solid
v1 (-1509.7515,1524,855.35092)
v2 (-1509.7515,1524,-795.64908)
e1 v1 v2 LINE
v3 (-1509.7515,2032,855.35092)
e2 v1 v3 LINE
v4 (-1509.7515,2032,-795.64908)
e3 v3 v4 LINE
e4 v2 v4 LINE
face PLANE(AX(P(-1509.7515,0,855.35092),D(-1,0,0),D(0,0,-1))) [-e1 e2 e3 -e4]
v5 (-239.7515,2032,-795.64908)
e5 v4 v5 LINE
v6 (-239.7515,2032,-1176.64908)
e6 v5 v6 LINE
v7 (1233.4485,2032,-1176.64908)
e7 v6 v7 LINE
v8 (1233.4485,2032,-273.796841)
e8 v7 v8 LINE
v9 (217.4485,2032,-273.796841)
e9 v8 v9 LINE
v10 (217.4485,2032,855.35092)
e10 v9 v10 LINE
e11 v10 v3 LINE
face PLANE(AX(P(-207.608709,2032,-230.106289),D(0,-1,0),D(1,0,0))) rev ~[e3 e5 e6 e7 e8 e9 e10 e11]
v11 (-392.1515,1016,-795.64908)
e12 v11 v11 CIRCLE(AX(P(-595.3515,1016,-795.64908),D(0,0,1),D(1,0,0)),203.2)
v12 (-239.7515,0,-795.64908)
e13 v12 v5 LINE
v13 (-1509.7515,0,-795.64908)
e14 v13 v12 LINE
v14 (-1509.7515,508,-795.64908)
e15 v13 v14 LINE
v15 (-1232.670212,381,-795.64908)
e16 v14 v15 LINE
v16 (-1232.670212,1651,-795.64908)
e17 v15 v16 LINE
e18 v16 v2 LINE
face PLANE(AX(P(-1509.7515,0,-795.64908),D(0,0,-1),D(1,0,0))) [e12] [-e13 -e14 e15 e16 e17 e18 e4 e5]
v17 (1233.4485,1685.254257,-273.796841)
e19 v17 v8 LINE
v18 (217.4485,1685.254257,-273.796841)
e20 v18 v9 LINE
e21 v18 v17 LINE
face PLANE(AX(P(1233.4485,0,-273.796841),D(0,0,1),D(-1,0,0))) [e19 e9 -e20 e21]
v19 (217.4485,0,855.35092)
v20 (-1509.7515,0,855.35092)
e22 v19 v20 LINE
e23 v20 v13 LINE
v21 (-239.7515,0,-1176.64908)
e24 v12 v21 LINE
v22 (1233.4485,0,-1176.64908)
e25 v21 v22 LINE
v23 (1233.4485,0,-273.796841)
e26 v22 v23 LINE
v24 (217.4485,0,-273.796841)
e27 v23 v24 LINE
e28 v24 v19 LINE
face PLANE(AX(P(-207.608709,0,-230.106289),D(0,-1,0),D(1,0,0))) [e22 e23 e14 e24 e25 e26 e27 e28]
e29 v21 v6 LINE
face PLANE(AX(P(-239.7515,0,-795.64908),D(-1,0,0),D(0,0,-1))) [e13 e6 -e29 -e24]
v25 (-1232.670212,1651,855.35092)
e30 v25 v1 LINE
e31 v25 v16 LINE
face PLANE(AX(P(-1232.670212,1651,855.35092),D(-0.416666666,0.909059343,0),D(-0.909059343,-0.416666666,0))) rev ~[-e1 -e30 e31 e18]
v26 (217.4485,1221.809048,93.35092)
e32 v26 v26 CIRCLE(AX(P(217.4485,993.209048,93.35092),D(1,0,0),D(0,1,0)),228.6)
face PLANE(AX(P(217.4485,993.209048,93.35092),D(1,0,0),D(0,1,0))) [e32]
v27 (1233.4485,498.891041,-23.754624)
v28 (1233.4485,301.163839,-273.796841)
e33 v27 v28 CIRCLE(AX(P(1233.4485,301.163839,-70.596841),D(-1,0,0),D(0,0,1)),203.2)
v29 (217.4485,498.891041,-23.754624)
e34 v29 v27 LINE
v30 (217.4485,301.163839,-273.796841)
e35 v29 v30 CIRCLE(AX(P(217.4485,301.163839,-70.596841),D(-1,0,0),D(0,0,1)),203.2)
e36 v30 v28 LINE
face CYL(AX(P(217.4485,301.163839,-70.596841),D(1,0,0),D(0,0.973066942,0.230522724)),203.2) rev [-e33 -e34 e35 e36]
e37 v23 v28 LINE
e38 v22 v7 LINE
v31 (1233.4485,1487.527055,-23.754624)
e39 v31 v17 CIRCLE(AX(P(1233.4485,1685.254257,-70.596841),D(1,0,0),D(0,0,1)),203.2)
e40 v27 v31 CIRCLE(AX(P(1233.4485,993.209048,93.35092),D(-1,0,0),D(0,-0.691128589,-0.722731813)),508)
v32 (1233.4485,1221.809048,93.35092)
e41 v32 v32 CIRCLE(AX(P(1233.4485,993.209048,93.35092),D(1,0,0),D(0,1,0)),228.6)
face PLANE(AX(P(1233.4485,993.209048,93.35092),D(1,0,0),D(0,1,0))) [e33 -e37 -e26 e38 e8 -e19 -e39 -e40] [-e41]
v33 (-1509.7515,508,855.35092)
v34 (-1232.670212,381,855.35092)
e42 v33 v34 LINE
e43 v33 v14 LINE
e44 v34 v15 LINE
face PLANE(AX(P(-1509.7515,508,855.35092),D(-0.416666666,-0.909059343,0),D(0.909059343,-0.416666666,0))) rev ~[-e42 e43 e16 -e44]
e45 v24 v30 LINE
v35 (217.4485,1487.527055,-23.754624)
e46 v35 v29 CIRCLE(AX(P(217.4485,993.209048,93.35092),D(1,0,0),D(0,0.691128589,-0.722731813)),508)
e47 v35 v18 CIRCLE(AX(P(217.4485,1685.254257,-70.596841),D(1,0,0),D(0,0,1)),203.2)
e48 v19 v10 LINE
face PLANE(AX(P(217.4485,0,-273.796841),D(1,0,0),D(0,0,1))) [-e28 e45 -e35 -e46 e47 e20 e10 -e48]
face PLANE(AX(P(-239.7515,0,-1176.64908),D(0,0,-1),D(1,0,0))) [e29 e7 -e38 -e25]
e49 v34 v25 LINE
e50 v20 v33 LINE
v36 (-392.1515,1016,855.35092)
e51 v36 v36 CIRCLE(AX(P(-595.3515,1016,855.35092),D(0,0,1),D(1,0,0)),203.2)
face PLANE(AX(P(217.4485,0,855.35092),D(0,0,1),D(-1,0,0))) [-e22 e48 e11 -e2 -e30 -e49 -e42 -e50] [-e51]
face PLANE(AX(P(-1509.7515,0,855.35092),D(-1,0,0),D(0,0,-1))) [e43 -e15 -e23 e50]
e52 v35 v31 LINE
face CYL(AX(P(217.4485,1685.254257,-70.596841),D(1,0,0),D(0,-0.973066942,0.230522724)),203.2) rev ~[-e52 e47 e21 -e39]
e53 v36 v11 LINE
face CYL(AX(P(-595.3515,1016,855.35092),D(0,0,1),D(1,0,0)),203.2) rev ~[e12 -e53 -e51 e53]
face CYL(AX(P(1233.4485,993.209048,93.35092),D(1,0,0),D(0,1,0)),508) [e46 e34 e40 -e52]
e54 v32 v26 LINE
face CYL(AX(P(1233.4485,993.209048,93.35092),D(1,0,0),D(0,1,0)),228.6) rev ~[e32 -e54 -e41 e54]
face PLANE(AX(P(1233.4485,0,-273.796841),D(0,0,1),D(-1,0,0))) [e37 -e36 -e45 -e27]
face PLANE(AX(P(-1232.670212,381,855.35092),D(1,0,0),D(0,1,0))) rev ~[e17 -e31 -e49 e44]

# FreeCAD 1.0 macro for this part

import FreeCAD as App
import Part
import Sketcher
from FreeCAD import Vector
Q = App.Units.Quantity


def edges_at(feature, points):
    """Names of the edges that pass closest to the given points."""
    edges = feature.Shape.Edges
    near = lambda p: min(range(len(edges)), key=lambda i: edges[i].distToShape(Part.Vertex(*p))[0])
    return sorted({f"Edge{near(p) + 1}" for p in points})


def add_polygon(sketch, points):
    """Adds a closed chain of lines whose ends are joined by coincident constraints."""
    first, n = sketch.GeometryCount, len(points)
    for a, b in zip(points, points[1:] + points[:1]):
        sketch.addGeometry(Part.LineSegment(App.Vector(*a, 0), App.Vector(*b, 0)), False)
    for i in range(n):
        sketch.addConstraint(Sketcher.Constraint("Coincident", first + i, 2, first + (i + 1) % n, 1))

doc = App.newDocument("Part")
body = doc.addObject("PartDesign::Body", "Body")

# Sketch on XZ plane
sketch1 = doc.addObject("Sketcher::SketchObject", "Sketch")
body.addObject(sketch1)
sketch1.AttachmentSupport = (doc.XZ_Plane, [""])
sketch1.MapMode = "FlatFace"
add_polygon(sketch1, [(-239.7515, -1176.64908), (1233.4485, -1176.64908), (1233.4485, -273.796841), (217.4485, -273.796841), (217.4485, 855.35092), (-1509.7515, 855.35092), (-1509.7515, -795.64908), (-239.7515, -795.64908)])  # lines 0-7
sketch1.addConstraint(Sketcher.Constraint("Horizontal", 0))
sketch1.addConstraint(Sketcher.Constraint("Vertical", 1))
sketch1.addConstraint(Sketcher.Constraint("Horizontal", 2))
sketch1.addConstraint(Sketcher.Constraint("Vertical", 3))
sketch1.addConstraint(Sketcher.Constraint("Horizontal", 4))
sketch1.addConstraint(Sketcher.Constraint("Vertical", 5))
sketch1.addConstraint(Sketcher.Constraint("Horizontal", 6))
sketch1.addConstraint(Sketcher.Constraint("Vertical", 7))
sketch1.addConstraint(Sketcher.Constraint("DistanceX", 0, 1, 0, 2, Q("58 in")))
sketch1.addConstraint(Sketcher.Constraint("DistanceX", 2, 2, 2, 1, Q("40 in")))
sketch1.addConstraint(Sketcher.Constraint("DistanceX", 4, 2, 4, 1, Q("68 in")))
sketch1.addConstraint(Sketcher.Constraint("DistanceY", 5, 2, 5, 1, Q("65 in")))
sketch1.addConstraint(Sketcher.Constraint("DistanceY", 7, 2, 7, 1, Q("15 in")))
sketch1.addConstraint(Sketcher.Constraint("DistanceY", 1, 1, 1, 2, Q("902.852239 mm")))
sketch1.addConstraint(Sketcher.Constraint("DistanceX", -1, 1, 0, 2, Q("1233.4485 mm")))
sketch1.addConstraint(Sketcher.Constraint("DistanceY", 0, 2, -1, 1, Q("1176.64908 mm")))
pad1 = doc.addObject("PartDesign::Pad", "Pad")
body.addObject(pad1)
pad1.Profile = sketch1
pad1.Length = Q("80 in")
pad1.Reversed = True

# Sketch on XY plane
sketch2 = doc.addObject("Sketcher::SketchObject", "Sketch001")
body.addObject(sketch2)
sketch2.AttachmentSupport = (doc.XY_Plane, [""])
sketch2.MapMode = "FlatFace"
sketch2.AttachmentOffset = App.Placement(Vector(0, 0, 855.35092), App.Rotation())
add_polygon(sketch2, [(-1232.670212, 381), (-1232.670212, 1651), (-1509.7515, 1524), (-1509.7515, 2032), (-2309.389114, 1178.267121), (-2251.436472, 691.465914), (-1509.7515, 0), (-1509.7515, 508)])  # lines 0-7
sketch2.addConstraint(Sketcher.Constraint("Vertical", 0))
sketch2.addConstraint(Sketcher.Constraint("Vertical", 2))
sketch2.addConstraint(Sketcher.Constraint("Vertical", 6))
sketch2.addConstraint(Sketcher.Constraint("PointOnObject", 5, 2, -1))
sketch2.addConstraint(Sketcher.Constraint("Vertical", 2, 2, 5, 2))
sketch2.addConstraint(Sketcher.Constraint("Equal", 2, 6))
sketch2.addConstraint(Sketcher.Constraint("Equal", 1, 7))
sketch2.addConstraint(Sketcher.Constraint("DistanceY", 0, 1, 0, 2, Q("50 in")))
sketch2.addConstraint(Sketcher.Constraint("DistanceY", 2, 1, 2, 2, Q("20 in")))
sketch2.addConstraint(Sketcher.Constraint("Distance", 1, Q("12 in")))
sketch2.addConstraint(Sketcher.Constraint("DistanceY", -1, 1, 0, 2, Q("65 in")))
sketch2.addConstraint(Sketcher.Constraint("DistanceX", 3, 2, 4, 2, Q("2.2816001 in")))
sketch2.addConstraint(Sketcher.Constraint("DistanceX", 1, 2, -1, 1, Q("1509.7515 mm")))
sketch2.addConstraint(Sketcher.Constraint("DistanceX", 3, 2, 0, 2, Q("1076.718902 mm")))
sketch2.addConstraint(Sketcher.Constraint("Distance", 4, Q("490.23864 mm")))
sketch2.addConstraint(Sketcher.Constraint("DistanceY", -1, 1, 3, 2, Q("1178.267121 mm")))
pocket1 = doc.addObject("PartDesign::Pocket", "Pocket")
body.addObject(pocket1)
pocket1.Profile = sketch2
pocket1.Length = Q("65 in")

# Sketch on XY plane
sketch3 = doc.addObject("Sketcher::SketchObject", "Sketch002")
body.addObject(sketch3)
sketch3.AttachmentSupport = (doc.XY_Plane, [""])
sketch3.MapMode = "FlatFace"
sketch3.AttachmentOffset = App.Placement(Vector(0, 0, 855.35092), App.Rotation())
sketch3.addGeometry(Part.Circle(Vector(-595.3515, 1016, 0), Vector(0, 0, 1), 203.2), False)
sketch3.addConstraint(Sketcher.Constraint("Diameter", 0, Q("16 in")))
sketch3.addConstraint(Sketcher.Constraint("DistanceY", -1, 1, 0, 3, Q("40 in")))
sketch3.addConstraint(Sketcher.Constraint("DistanceX", 0, 3, -1, 1, Q("595.3515 mm")))
pocket2 = doc.addObject("PartDesign::Pocket", "Pocket001")
body.addObject(pocket2)
pocket2.Profile = sketch3
pocket2.Length = Q("65 in")

# Sketch on YZ plane
sketch4 = doc.addObject("Sketcher::SketchObject", "Sketch003")
body.addObject(sketch4)
sketch4.AttachmentSupport = (doc.YZ_Plane, [""])
sketch4.MapMode = "FlatFace"
sketch4.AttachmentOffset = App.Placement(Vector(0, 0, 1233.4485), App.Rotation())
sketch4.addGeometry(Part.Circle(Vector(993.209048, 93.35092, 0), Vector(0, 0, 1), 508), False)
sketch4.addConstraint(Sketcher.Constraint("Diameter", 0, Q("40 in")))
sketch4.addConstraint(Sketcher.Constraint("DistanceX", -1, 1, 0, 3, Q("993.209048 mm")))
sketch4.addConstraint(Sketcher.Constraint("DistanceY", -1, 1, 0, 3, Q("93.35092 mm")))
pad2 = doc.addObject("PartDesign::Pad", "Pad001")
body.addObject(pad2)
pad2.Profile = sketch4
pad2.Length = Q("40 in")
pad2.Reversed = True
doc.recompute()

fillet = doc.addObject("PartDesign::Fillet", "Fillet")
body.addObject(fillet)
fillet.Base = (pad2, edges_at(pad2, [(725.448, 1344.302, -273.797)]))
fillet.Radius = Q("8 in")
doc.recompute()

fillet2 = doc.addObject("PartDesign::Fillet", "Fillet001")
body.addObject(fillet2)
fillet2.Base = (fillet, edges_at(fillet, [(725.448, 642.116, -273.797)]))
fillet2.Radius = Q("8 in")

# Sketch on YZ plane
sketch5 = doc.addObject("Sketcher::SketchObject", "Sketch004")
body.addObject(sketch5)
sketch5.AttachmentSupport = (doc.YZ_Plane, [""])
sketch5.MapMode = "FlatFace"
sketch5.AttachmentOffset = App.Placement(Vector(0, 0, 1233.4485), App.Rotation())
sketch5.addGeometry(Part.Circle(Vector(993.209048, 93.35092, 0), Vector(0, 0, 1), 228.6), False)
sketch5.addConstraint(Sketcher.Constraint("Diameter", 0, Q("18 in")))
sketch5.addConstraint(Sketcher.Constraint("DistanceX", -1, 1, 0, 3, Q("993.209048 mm")))
sketch5.addConstraint(Sketcher.Constraint("DistanceY", -1, 1, 0, 3, Q("93.35092 mm")))
pad3 = doc.addObject("PartDesign::Pad", "Pad002")
body.addObject(pad3)
pad3.Profile = sketch5
pad3.Length = Q("40 in")
pad3.Reversed = True

# Sketch on YZ plane
sketch6 = doc.addObject("Sketcher::SketchObject", "Sketch005")
body.addObject(sketch6)
sketch6.AttachmentSupport = (doc.YZ_Plane, [""])
sketch6.MapMode = "FlatFace"
sketch6.AttachmentOffset = App.Placement(Vector(0, 0, 1233.4485), App.Rotation())
sketch6.addGeometry(Part.Circle(Vector(993.209048, 93.35092, 0), Vector(0, 0, 1), 228.6), False)
sketch6.addConstraint(Sketcher.Constraint("Diameter", 0, Q("18 in")))
sketch6.addConstraint(Sketcher.Constraint("DistanceX", -1, 1, 0, 3, Q("993.209048 mm")))
sketch6.addConstraint(Sketcher.Constraint("DistanceY", -1, 1, 0, 3, Q("93.35092 mm")))
pocket3 = doc.addObject("PartDesign::Pocket", "Pocket002")
body.addObject(pocket3)
pocket3.Profile = sketch6
pocket3.Length = Q("40 in")

doc.recompute()
